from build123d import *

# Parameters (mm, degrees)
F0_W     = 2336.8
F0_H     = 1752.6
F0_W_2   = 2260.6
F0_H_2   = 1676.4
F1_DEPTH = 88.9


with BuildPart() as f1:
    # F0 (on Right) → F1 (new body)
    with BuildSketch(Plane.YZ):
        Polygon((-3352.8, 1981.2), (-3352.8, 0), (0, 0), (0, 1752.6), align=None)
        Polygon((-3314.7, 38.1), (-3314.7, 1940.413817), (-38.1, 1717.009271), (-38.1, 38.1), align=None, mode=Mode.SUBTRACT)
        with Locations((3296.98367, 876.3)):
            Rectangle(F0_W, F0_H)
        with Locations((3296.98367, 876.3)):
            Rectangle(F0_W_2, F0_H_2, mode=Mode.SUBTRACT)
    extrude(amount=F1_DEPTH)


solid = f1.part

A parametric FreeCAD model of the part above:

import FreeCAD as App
import Part
import Sketcher
Q = App.Units.Quantity

doc = App.newDocument("Part")
body = doc.addObject("PartDesign::Body", "Body")
body.AllowCompound = True

sketch1 = doc.addObject("Sketcher::SketchObject", "Sketch")
body.addObject(sketch1)
sketch1.AttachmentSupport = (doc.YZ_Plane, [""])
sketch1.MapMode = "FlatFace"
sketch1.addGeometry([
    Part.LineSegment(App.Vector(-3353, 1981, 0), App.Vector(-3353, 0, 0)),
    Part.LineSegment(App.Vector(-3353, 0, 0), App.Vector(0, 0, 0)),
    Part.LineSegment(App.Vector(0, 0, 0), App.Vector(0, 1753, 0)),
    Part.LineSegment(App.Vector(0, 1753, 0), App.Vector(-3353, 1981, 0)),
    Part.LineSegment(App.Vector(-38, 38, 0), App.Vector(-3315, 38, 0)),
    Part.LineSegment(App.Vector(-3315, 38, 0), App.Vector(-3315, 1940, 0)),
    Part.LineSegment(App.Vector(-3315, 1940, 0), App.Vector(-38, 1717, 0)),
    Part.LineSegment(App.Vector(-38, 1717, 0), App.Vector(-38, 38, 0)),
    Part.LineSegment(App.Vector(2129, 1753, 0), App.Vector(2129, 0, 0)),
    Part.LineSegment(App.Vector(2129, 0, 0), App.Vector(4465, 0, 0)),
    Part.LineSegment(App.Vector(4465, 0, 0), App.Vector(4465, 1753, 0)),
    Part.LineSegment(App.Vector(4465, 1753, 0), App.Vector(2129, 1753, 0)),
    Part.LineSegment(App.Vector(4427, 38, 0), App.Vector(2167, 38, 0)),
    Part.LineSegment(App.Vector(2167, 38, 0), App.Vector(2167, 1714, 0)),
    Part.LineSegment(App.Vector(2167, 1714, 0), App.Vector(4427, 1714, 0)),
    Part.LineSegment(App.Vector(4427, 1714, 0), App.Vector(4427, 38, 0)),
], False)
sketch1.addConstraint([
    Sketcher.Constraint("Coincident", 0, 2, 1, 1),
    Sketcher.Constraint("Coincident", 1, 2, 2, 1),
    Sketcher.Constraint("Coincident", 2, 2, 3, 1),
    Sketcher.Constraint("Coincident", 3, 2, 0, 1),
    Sketcher.Constraint("Coincident", 4, 2, 5, 1),
    Sketcher.Constraint("Coincident", 5, 2, 6, 1),
    Sketcher.Constraint("Coincident", 6, 2, 7, 1),
    Sketcher.Constraint("Coincident", 7, 2, 4, 1),
    Sketcher.Constraint("Coincident", 8, 2, 9, 1),
    Sketcher.Constraint("Coincident", 9, 2, 10, 1),
    Sketcher.Constraint("Coincident", 10, 2, 11, 1),
    Sketcher.Constraint("Coincident", 11, 2, 8, 1),
    Sketcher.Constraint("Coincident", 12, 2, 13, 1),
    Sketcher.Constraint("Coincident", 13, 2, 14, 1),
    Sketcher.Constraint("Coincident", 14, 2, 15, 1),
    Sketcher.Constraint("Coincident", 15, 2, 12, 1),
    Sketcher.Constraint("Vertical", 0),
    Sketcher.Constraint("Horizontal", 1),
    Sketcher.Constraint("Vertical", 2),
    Sketcher.Constraint("Horizontal", 4),
    Sketcher.Constraint("Vertical", 5),
    Sketcher.Constraint("Vertical", 7),
    Sketcher.Constraint("Vertical", 8),
    Sketcher.Constraint("Horizontal", 9),
    Sketcher.Constraint("Vertical", 10),
    Sketcher.Constraint("Horizontal", 11),
    Sketcher.Constraint("Horizontal", 12),
    Sketcher.Constraint("Vertical", 13),
    Sketcher.Constraint("Horizontal", 14),
    Sketcher.Constraint("Vertical", 15),
    Sketcher.Constraint("Coincident", 1, 2, -1, 1),
    Sketcher.Constraint("PointOnObject", 8, 2, -1),
    Sketcher.Constraint("Parallel", 3, 6),
    Sketcher.Constraint("Horizontal", 2, 2, 10, 2),
    Sketcher.Constraint("Horizontal", 7, 2, 12, 2),
    Sketcher.Constraint("DistanceX", 1, 1, 1, 2, Q("132 in")),
    Sketcher.Constraint("DistanceX", 4, 2, 4, 1, Q("129 in")),
    Sketcher.Constraint("DistanceX", 9, 1, 9, 2, Q("92 in")),
    Sketcher.Constraint("DistanceX", 12, 2, 12, 1, Q("89 in")),
    Sketcher.Constraint("DistanceY", 0, 2, 0, 1, Q("78 in")),
    Sketcher.Constraint("DistanceY", 2, 1, 2, 2, Q("69 in")),
    Sketcher.Constraint("DistanceY", 13, 1, 13, 2, Q("66 in")),
    Sketcher.Constraint("DistanceX", 4, 2, -1, 1, Q("130.5 in")),
    Sketcher.Constraint("DistanceY", -1, 1, 4, 2, Q("1.5 in")),
    Sketcher.Constraint("DistanceX", 8, 2, 12, 2, Q("1.5 in")),
    Sketcher.Constraint("DistanceY", 7, 2, 7, 1, Q("1678.909271 mm")),
    Sketcher.Constraint("DistanceX", -1, 1, 8, 2, Q("2128.58367 mm")),
])
pad1 = doc.addObject("PartDesign::Pad", "Pad")
body.addObject(pad1)
pad1.Profile = sketch1
pad1.Length = Q("3.5 in")

doc.recompute()
